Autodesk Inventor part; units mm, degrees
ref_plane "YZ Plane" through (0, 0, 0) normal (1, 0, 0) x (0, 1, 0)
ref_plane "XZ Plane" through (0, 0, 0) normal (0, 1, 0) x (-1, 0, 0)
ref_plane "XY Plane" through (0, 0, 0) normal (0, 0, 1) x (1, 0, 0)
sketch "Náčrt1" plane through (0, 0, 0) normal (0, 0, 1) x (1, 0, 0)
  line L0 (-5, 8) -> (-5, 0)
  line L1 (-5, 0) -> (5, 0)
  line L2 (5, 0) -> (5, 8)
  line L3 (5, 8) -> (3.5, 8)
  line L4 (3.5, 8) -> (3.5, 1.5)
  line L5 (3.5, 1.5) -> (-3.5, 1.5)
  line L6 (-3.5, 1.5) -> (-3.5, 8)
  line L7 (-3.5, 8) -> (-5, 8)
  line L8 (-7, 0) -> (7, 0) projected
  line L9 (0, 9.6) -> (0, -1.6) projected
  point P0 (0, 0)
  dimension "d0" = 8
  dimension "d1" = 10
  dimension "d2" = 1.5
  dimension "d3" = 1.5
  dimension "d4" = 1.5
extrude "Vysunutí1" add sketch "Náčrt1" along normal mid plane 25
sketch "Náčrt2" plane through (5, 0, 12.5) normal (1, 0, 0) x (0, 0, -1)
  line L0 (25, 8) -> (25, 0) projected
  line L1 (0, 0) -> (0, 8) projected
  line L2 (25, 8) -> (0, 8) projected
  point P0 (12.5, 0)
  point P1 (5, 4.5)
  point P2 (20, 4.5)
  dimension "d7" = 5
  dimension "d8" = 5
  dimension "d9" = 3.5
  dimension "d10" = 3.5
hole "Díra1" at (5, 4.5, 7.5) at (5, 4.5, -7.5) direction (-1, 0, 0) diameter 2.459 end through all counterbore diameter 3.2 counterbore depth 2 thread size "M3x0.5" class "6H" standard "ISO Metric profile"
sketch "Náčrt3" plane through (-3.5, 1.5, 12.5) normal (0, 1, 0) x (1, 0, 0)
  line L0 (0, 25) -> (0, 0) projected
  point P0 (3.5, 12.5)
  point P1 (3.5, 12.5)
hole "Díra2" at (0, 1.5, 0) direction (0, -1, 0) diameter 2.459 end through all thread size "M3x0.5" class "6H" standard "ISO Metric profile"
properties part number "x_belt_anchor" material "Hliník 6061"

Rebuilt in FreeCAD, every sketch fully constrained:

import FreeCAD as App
import Part
import Sketcher
Q = App.Units.Quantity


def add_polygon(sketch, points):
    """Adds a closed chain of lines whose ends are joined by coincident constraints."""
    first, n = sketch.GeometryCount, len(points)
    for a, b in zip(points, points[1:] + points[:1]):
        sketch.addGeometry(Part.LineSegment(App.Vector(*a, 0), App.Vector(*b, 0)), False)
    for i in range(n):
        sketch.addConstraint(Sketcher.Constraint("Coincident", first + i, 2, first + (i + 1) % n, 1))

doc = App.newDocument("Part")
body = doc.addObject("PartDesign::Body", "Body")

sketch1 = body.newObject("Sketcher::SketchObject", "Sketch")
sketch1.AttachmentSupport = (doc.getObject("XY_Plane"), [""])
sketch1.MapMode = "FlatFace"
add_polygon(sketch1, [(-3.5, 8), (-5, 8), (-5, 0), (5, 0), (5, 8), (3.5, 8), (3.5, 1.5), (-3.5, 1.5)])
sketch1.addConstraint(Sketcher.Constraint("Horizontal", 0))
sketch1.addConstraint(Sketcher.Constraint("Vertical", 1))
sketch1.addConstraint(Sketcher.Constraint("Horizontal", 2))
sketch1.addConstraint(Sketcher.Constraint("Vertical", 3))
sketch1.addConstraint(Sketcher.Constraint("Horizontal", 4))
sketch1.addConstraint(Sketcher.Constraint("Vertical", 5))
sketch1.addConstraint(Sketcher.Constraint("Horizontal", 6))
sketch1.addConstraint(Sketcher.Constraint("Vertical", 7))
sketch1.addConstraint(Sketcher.Constraint("Symmetric", 1, 2, 2, 2, -1, 1))
sketch1.addConstraint(Sketcher.Constraint("Symmetric", 4, 2, 7, 2, -2))
sketch1.addConstraint(Sketcher.Constraint("DistanceX", 2, 1, 2, 2, Q("10 mm")))
sketch1.addConstraint(Sketcher.Constraint("DistanceY", 1, 2, 1, 1, Q("8 mm")))
sketch1.addConstraint(Sketcher.Constraint("DistanceX", 0, 2, 0, 1, Q("1.5 mm")))
sketch1.addConstraint(Sketcher.Constraint("DistanceY", -1, 1, 5, 2, Q("1.5 mm")))
pad1 = body.newObject("PartDesign::Pad", "Pad")
pad1.Profile = sketch1
pad1.Length = 25
pad1.Midplane = True

sketch2 = body.newObject("Sketcher::SketchObject", "Sketch001")
sketch2.AttachmentSupport = (doc.getObject("YZ_Plane"), [""])
sketch2.MapMode = "FlatFace"
sketch2.AttachmentOffset = App.Placement(App.Vector(0, 0, 5), App.Rotation())
sketch2.addGeometry(Part.Circle(App.Vector(4.5, 7.5, 0), App.Vector(0, 0, 1), 1.2), False)
sketch2.addGeometry(Part.Circle(App.Vector(4.5, -7.5, 0), App.Vector(0, 0, 1), 1.2), False)
sketch2.addConstraint(Sketcher.Constraint("Equal", 0, 1))
sketch2.addConstraint(Sketcher.Constraint("Symmetric", 0, 3, 1, 3, -1))
sketch2.addConstraint(Sketcher.Constraint("Diameter", 0, Q("2.459 mm")))
sketch2.addConstraint(Sketcher.Constraint("DistanceY", 1, 3, 0, 3, Q("15 mm")))
sketch2.addConstraint(Sketcher.Constraint("DistanceX", -1, 1, 0, 3, Q("4.5 mm")))
doc.recompute()
hole = body.newObject("PartDesign::Hole", "Hole")
hole.Profile = sketch2
hole.ThreadType = "None"
hole.Diameter = 2.459
hole.DepthType = "ThroughAll"
hole.HoleCutType = "Counterbore"
hole.HoleCutDiameter = 3.2
hole.HoleCutDepth = 2

sketch3 = body.newObject("Sketcher::SketchObject", "Sketch002")
sketch3.AttachmentSupport = (doc.getObject("XZ_Plane"), [""])
sketch3.MapMode = "FlatFace"
sketch3.AttachmentOffset = App.Placement(App.Vector(0, 0, -1.5), App.Rotation())
sketch3.addGeometry(Part.Circle(App.Vector(0, 0, 0), App.Vector(0, 0, 1), 1.2), False)
sketch3.addConstraint(Sketcher.Constraint("Coincident", 0, 3, -1, 1))
sketch3.addConstraint(Sketcher.Constraint("Diameter", 0, Q("2.459 mm")))
doc.recompute()
hole2 = body.newObject("PartDesign::Hole", "Hole001")
hole2.Profile = sketch3
hole2.ThreadType = "None"
hole2.Diameter = 2.459
hole2.DepthType = "ThroughAll"
hole2.Reversed = True

doc.recompute()
